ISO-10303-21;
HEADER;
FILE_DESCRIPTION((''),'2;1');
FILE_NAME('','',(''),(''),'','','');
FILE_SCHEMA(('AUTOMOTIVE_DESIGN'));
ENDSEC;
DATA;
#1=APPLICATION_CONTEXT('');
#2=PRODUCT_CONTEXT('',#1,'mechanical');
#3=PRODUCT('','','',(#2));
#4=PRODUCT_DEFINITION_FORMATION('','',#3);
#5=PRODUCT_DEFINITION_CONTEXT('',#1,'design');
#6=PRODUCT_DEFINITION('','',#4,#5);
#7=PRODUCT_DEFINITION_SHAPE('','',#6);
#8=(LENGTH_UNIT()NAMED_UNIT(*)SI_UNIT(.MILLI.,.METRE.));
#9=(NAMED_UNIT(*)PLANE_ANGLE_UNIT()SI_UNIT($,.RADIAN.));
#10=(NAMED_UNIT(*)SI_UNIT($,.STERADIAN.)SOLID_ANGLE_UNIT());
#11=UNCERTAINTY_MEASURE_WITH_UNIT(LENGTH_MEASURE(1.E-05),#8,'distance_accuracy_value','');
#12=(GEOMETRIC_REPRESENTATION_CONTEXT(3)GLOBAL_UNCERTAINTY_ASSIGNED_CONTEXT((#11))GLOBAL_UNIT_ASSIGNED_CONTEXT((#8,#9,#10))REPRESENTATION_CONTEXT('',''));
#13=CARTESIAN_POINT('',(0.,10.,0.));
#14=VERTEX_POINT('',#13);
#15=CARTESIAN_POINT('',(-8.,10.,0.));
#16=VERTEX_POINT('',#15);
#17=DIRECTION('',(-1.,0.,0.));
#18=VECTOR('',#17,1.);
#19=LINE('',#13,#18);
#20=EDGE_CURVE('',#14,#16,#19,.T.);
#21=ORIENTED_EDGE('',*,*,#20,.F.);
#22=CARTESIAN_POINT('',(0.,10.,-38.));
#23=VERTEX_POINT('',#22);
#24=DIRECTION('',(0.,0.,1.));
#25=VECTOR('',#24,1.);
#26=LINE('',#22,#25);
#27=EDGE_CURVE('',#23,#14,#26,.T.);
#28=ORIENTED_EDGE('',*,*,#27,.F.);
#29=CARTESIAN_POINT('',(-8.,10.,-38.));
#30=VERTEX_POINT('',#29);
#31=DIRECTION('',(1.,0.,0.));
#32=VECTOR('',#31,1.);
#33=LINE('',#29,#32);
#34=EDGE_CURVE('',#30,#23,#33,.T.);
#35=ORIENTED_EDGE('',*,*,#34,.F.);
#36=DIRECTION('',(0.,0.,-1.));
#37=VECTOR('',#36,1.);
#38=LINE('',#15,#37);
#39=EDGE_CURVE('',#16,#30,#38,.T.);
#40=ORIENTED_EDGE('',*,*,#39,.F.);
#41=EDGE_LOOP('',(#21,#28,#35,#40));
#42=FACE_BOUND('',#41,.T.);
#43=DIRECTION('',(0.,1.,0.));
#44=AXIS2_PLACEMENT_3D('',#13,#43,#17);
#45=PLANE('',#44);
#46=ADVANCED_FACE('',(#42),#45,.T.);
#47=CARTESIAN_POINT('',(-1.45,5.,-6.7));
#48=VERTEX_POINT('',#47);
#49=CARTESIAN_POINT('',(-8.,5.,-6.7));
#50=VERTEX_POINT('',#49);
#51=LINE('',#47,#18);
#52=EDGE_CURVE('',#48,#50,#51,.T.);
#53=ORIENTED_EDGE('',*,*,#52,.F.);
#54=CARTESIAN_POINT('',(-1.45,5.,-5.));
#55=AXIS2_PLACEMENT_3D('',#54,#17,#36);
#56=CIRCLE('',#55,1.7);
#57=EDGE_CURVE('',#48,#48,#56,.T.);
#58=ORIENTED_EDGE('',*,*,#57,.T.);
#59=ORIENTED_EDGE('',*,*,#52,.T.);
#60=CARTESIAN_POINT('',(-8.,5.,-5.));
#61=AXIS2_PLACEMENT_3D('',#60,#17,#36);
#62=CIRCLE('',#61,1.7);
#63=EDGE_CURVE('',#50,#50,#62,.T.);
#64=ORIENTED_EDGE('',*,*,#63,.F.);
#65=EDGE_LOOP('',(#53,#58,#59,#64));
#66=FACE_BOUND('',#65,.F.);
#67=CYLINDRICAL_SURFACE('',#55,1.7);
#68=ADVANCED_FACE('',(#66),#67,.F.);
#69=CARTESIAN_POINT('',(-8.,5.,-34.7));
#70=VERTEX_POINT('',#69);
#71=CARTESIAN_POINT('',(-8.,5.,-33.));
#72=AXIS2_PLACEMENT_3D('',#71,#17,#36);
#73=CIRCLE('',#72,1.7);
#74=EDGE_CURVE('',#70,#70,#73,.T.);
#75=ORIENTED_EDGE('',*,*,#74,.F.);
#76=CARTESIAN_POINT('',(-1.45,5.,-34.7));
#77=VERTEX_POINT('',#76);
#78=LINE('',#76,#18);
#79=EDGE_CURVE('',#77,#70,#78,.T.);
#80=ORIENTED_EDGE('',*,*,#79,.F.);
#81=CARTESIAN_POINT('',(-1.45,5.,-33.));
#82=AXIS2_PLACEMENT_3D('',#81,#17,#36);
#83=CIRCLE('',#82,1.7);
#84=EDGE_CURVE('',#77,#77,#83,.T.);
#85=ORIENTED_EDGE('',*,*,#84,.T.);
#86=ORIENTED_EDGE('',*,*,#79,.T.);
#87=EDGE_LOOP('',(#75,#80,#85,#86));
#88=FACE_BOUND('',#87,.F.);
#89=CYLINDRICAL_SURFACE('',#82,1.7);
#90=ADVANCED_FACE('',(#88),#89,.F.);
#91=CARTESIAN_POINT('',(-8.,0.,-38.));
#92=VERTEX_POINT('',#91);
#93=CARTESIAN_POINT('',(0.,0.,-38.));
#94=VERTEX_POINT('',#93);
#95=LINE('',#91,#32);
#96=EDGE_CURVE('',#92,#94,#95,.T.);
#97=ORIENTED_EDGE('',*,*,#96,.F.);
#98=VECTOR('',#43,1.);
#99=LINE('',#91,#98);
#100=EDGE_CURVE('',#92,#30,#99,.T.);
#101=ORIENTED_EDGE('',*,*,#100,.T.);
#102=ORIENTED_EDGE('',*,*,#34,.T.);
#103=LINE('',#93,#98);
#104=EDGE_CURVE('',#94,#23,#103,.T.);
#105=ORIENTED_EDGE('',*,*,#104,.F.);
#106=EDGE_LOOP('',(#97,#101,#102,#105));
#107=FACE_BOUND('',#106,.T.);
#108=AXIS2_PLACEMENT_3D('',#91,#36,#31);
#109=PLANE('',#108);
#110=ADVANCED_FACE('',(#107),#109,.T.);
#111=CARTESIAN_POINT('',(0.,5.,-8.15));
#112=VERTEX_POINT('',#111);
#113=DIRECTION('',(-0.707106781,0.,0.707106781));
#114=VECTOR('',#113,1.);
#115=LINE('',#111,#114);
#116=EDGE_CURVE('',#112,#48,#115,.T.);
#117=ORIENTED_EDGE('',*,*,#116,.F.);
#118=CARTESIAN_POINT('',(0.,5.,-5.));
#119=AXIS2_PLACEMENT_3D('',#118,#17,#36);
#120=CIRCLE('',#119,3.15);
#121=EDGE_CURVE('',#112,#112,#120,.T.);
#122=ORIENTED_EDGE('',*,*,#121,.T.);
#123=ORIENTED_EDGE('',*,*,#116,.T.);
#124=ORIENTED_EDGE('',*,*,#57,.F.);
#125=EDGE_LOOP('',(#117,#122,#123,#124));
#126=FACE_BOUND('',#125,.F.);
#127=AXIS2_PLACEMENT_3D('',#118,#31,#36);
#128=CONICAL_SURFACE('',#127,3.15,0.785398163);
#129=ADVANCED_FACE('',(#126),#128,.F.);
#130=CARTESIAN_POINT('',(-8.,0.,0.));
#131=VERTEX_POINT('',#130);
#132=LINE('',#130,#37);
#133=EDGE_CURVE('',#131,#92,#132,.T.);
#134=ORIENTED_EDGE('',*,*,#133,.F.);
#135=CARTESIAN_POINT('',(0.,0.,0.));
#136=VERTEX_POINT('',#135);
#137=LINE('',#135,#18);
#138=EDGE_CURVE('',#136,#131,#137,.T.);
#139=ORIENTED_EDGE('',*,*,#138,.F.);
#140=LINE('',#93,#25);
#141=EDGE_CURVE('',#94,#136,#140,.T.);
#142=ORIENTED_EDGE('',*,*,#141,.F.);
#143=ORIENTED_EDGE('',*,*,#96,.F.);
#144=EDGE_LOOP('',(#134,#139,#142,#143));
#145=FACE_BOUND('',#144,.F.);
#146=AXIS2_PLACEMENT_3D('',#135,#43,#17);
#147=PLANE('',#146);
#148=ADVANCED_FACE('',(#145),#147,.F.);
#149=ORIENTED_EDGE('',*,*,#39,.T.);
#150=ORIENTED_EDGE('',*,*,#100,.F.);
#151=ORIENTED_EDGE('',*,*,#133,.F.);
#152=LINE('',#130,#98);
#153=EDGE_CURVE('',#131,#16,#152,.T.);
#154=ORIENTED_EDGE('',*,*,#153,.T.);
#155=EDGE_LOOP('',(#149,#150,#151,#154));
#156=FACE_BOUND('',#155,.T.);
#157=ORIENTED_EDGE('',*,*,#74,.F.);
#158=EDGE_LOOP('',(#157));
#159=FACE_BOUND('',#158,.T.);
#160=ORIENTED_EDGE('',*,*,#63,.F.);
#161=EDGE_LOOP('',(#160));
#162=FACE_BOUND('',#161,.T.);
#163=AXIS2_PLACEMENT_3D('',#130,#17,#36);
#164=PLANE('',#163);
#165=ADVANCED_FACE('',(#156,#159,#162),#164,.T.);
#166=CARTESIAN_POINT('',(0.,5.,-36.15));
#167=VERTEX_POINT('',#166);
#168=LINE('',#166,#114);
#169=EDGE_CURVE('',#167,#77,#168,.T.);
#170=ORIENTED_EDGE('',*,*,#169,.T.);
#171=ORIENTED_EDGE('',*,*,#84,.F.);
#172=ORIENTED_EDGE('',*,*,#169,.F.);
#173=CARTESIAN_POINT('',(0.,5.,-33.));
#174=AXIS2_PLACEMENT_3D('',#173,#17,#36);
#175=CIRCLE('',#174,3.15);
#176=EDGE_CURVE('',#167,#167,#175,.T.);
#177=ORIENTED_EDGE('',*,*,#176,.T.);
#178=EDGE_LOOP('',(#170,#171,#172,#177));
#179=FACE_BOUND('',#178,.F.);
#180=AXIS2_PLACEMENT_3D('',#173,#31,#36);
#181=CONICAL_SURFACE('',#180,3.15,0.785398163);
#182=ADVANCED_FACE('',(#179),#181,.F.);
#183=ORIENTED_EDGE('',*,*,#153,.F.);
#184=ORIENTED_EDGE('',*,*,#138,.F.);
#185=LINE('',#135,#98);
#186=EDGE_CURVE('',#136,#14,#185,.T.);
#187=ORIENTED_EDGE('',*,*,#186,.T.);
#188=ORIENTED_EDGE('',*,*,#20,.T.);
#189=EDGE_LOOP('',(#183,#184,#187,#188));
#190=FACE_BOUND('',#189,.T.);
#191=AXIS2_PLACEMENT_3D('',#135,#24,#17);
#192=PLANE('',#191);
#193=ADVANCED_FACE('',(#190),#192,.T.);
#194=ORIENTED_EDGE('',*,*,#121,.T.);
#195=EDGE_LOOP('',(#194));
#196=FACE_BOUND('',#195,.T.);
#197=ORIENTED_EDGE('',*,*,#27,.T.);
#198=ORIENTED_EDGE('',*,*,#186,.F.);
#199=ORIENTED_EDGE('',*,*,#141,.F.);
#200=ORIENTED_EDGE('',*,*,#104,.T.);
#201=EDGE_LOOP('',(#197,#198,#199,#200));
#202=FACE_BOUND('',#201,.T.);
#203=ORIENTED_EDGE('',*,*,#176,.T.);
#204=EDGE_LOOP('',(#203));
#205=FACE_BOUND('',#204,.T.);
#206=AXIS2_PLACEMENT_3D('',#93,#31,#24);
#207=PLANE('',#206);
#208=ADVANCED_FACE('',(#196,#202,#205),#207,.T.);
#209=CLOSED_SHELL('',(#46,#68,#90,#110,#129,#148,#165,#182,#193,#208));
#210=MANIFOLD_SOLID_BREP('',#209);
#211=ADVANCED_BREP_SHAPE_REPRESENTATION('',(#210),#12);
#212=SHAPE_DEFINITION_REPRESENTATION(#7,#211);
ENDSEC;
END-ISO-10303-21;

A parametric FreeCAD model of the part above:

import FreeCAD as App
import Part
import Sketcher

doc = App.newDocument("Part")
body = doc.addObject("PartDesign::Body", "Body")

sketch1 = doc.addObject("Sketcher::SketchObject", "Sketch")
body.addObject(sketch1)
sketch1.AttachmentSupport = (doc.XZ_Plane, [""])
sketch1.MapMode = "FlatFace"
sketch1.addGeometry([
    Part.LineSegment(App.Vector(-8, 0, 0), App.Vector(0, 0, 0)),
    Part.LineSegment(App.Vector(0, 0, 0), App.Vector(0, -38, 0)),
    Part.LineSegment(App.Vector(0, -38, 0), App.Vector(-8, -38, 0)),
    Part.LineSegment(App.Vector(-8, -38, 0), App.Vector(-8, 0, 0)),
], False)
sketch1.addConstraint([
    Sketcher.Constraint("Coincident", 0, 2, 1, 1),
    Sketcher.Constraint("Coincident", 1, 2, 2, 1),
    Sketcher.Constraint("Coincident", 2, 2, 3, 1),
    Sketcher.Constraint("Coincident", 3, 2, 0, 1),
    Sketcher.Constraint("Horizontal", 0),
    Sketcher.Constraint("Vertical", 1),
    Sketcher.Constraint("Horizontal", 2),
    Sketcher.Constraint("Vertical", 3),
    Sketcher.Constraint("Coincident", 0, 2, -1, 1),
    Sketcher.Constraint("DistanceX", 0, 1, 0, 2, 8.0),
    Sketcher.Constraint("DistanceY", 1, 2, 1, 1, 38.0),
])
pad1 = doc.addObject("PartDesign::Pad", "Pad")
body.addObject(pad1)
pad1.Profile = sketch1
pad1.Length = 10
pad1.Reversed = True

sketch2 = doc.addObject("Sketcher::SketchObject", "Sketch001")
body.addObject(sketch2)
sketch2.AttachmentSupport = (doc.YZ_Plane, [""])
sketch2.MapMode = "FlatFace"
sketch2.addGeometry([
    Part.Circle(App.Vector(5, -5, 0), App.Vector(0, 0, 1), 1.7),
    Part.Circle(App.Vector(5, -33, 0), App.Vector(0, 0, 1), 1.7),
], False)
sketch2.addConstraint([
    Sketcher.Constraint("Equal", 0, 1),
    Sketcher.Constraint("Vertical", 0, 3, 1, 3),
    Sketcher.Constraint("Diameter", 0, 3.4),
    Sketcher.Constraint("DistanceX", -1, 1, 0, 3, 5.0),
    Sketcher.Constraint("DistanceY", 0, 3, -1, 1, 5.0),
    Sketcher.Constraint("DistanceY", 1, 3, -1, 1, 33.0),
])
doc.recompute()
hole = doc.addObject("PartDesign::Hole", "Hole")
body.addObject(hole)
hole.Profile = sketch2
hole.ThreadType = "None"
hole.Diameter = 3.4
hole.DepthType = "ThroughAll"
hole.HoleCutType = "Countersink"
hole.HoleCutDiameter = 6.3
hole.HoleCutCountersinkAngle = 90

doc.recompute()
